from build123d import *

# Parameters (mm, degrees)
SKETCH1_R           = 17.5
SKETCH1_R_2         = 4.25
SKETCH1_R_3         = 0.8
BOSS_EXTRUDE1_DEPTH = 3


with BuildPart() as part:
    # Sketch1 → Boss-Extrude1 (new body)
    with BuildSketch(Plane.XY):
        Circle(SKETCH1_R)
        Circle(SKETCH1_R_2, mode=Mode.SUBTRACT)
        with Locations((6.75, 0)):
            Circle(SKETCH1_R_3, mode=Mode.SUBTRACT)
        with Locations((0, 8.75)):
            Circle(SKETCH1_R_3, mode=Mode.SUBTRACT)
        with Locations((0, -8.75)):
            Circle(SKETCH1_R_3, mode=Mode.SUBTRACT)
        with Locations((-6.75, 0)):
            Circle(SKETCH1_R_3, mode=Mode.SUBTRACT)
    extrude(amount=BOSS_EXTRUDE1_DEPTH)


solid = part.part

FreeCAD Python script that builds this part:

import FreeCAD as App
import Part
import Sketcher
from FreeCAD import Vector

doc = App.newDocument("Part")
params = doc.addObject("Spreadsheet::Sheet", "Params")
for row, (alias, value) in enumerate([
    ("sketch1_diameter", "35 mm"),
    ("sketch1_diameter2", "1.6 mm"),
    ("sketch1_diameter3", "8.5 mm"),
    ("pad1_length", "3 mm"),
], start=1):
    params.set(f"A{row}", alias)
    params.set(f"B{row}", "=" + value)
    params.setAlias(f"B{row}", alias)

body = doc.addObject("PartDesign::Body", "Body")

# Sketch on XY plane
sketch1 = doc.addObject("Sketcher::SketchObject", "Sketch")
body.addObject(sketch1)
sketch1.AttachmentSupport = (doc.XY_Plane, [""])
sketch1.MapMode = "FlatFace"
sketch1.addGeometry([
    Part.Circle(Vector(0, 0, 0), Vector(0, 0, 1), 17.5),  # 0
    Part.Circle(Vector(-6.75, 0, 0), Vector(0, 0, 1), 0.8),  # 1
    Part.Circle(Vector(0, -8.75, 0), Vector(0, 0, 1), 0.8),  # 2
    Part.Circle(Vector(0, 0, 0), Vector(0, 0, 1), 4.25),  # 3
    Part.Circle(Vector(6.75, 0, 0), Vector(0, 0, 1), 0.8),  # 4
    Part.Circle(Vector(0, 8.75, 0), Vector(0, 0, 1), 0.8),  # 5
], False)
sketch1.addConstraint([
    Sketcher.Constraint("Coincident", 0, 3, -1, 1),
    Sketcher.Constraint("Coincident", 3, 3, -1, 1),
    Sketcher.Constraint("Equal", 1, 2),
    Sketcher.Constraint("Equal", 2, 4),
    Sketcher.Constraint("Equal", 4, 5),
    Sketcher.Constraint("Symmetric", 1, 3, 4, 3, -1, 1),
    Sketcher.Constraint("Symmetric", 2, 3, 5, 3, -1, 1),
    Sketcher.Constraint("PointOnObject", 1, 3, -1),
    Sketcher.Constraint("PointOnObject", 2, 3, -2),
    Sketcher.Constraint("Diameter", 0, 35.0),
    Sketcher.Constraint("Diameter", 1, 1.6),
    Sketcher.Constraint("Diameter", 3, 8.5),
    Sketcher.Constraint("DistanceX", 1, 3, 4, 3, 13.5),
    Sketcher.Constraint("DistanceY", 2, 3, 5, 3, 17.5),
])
sketch1.setExpression("Constraints[9]", "Params.sketch1_diameter")
sketch1.setExpression("Constraints[10]", "Params.sketch1_diameter2")
sketch1.setExpression("Constraints[11]", "Params.sketch1_diameter3")
pad1 = doc.addObject("PartDesign::Pad", "Pad")
body.addObject(pad1)
pad1.Profile = sketch1
pad1.setExpression("Length", "Params.pad1_length")

doc.recompute()
